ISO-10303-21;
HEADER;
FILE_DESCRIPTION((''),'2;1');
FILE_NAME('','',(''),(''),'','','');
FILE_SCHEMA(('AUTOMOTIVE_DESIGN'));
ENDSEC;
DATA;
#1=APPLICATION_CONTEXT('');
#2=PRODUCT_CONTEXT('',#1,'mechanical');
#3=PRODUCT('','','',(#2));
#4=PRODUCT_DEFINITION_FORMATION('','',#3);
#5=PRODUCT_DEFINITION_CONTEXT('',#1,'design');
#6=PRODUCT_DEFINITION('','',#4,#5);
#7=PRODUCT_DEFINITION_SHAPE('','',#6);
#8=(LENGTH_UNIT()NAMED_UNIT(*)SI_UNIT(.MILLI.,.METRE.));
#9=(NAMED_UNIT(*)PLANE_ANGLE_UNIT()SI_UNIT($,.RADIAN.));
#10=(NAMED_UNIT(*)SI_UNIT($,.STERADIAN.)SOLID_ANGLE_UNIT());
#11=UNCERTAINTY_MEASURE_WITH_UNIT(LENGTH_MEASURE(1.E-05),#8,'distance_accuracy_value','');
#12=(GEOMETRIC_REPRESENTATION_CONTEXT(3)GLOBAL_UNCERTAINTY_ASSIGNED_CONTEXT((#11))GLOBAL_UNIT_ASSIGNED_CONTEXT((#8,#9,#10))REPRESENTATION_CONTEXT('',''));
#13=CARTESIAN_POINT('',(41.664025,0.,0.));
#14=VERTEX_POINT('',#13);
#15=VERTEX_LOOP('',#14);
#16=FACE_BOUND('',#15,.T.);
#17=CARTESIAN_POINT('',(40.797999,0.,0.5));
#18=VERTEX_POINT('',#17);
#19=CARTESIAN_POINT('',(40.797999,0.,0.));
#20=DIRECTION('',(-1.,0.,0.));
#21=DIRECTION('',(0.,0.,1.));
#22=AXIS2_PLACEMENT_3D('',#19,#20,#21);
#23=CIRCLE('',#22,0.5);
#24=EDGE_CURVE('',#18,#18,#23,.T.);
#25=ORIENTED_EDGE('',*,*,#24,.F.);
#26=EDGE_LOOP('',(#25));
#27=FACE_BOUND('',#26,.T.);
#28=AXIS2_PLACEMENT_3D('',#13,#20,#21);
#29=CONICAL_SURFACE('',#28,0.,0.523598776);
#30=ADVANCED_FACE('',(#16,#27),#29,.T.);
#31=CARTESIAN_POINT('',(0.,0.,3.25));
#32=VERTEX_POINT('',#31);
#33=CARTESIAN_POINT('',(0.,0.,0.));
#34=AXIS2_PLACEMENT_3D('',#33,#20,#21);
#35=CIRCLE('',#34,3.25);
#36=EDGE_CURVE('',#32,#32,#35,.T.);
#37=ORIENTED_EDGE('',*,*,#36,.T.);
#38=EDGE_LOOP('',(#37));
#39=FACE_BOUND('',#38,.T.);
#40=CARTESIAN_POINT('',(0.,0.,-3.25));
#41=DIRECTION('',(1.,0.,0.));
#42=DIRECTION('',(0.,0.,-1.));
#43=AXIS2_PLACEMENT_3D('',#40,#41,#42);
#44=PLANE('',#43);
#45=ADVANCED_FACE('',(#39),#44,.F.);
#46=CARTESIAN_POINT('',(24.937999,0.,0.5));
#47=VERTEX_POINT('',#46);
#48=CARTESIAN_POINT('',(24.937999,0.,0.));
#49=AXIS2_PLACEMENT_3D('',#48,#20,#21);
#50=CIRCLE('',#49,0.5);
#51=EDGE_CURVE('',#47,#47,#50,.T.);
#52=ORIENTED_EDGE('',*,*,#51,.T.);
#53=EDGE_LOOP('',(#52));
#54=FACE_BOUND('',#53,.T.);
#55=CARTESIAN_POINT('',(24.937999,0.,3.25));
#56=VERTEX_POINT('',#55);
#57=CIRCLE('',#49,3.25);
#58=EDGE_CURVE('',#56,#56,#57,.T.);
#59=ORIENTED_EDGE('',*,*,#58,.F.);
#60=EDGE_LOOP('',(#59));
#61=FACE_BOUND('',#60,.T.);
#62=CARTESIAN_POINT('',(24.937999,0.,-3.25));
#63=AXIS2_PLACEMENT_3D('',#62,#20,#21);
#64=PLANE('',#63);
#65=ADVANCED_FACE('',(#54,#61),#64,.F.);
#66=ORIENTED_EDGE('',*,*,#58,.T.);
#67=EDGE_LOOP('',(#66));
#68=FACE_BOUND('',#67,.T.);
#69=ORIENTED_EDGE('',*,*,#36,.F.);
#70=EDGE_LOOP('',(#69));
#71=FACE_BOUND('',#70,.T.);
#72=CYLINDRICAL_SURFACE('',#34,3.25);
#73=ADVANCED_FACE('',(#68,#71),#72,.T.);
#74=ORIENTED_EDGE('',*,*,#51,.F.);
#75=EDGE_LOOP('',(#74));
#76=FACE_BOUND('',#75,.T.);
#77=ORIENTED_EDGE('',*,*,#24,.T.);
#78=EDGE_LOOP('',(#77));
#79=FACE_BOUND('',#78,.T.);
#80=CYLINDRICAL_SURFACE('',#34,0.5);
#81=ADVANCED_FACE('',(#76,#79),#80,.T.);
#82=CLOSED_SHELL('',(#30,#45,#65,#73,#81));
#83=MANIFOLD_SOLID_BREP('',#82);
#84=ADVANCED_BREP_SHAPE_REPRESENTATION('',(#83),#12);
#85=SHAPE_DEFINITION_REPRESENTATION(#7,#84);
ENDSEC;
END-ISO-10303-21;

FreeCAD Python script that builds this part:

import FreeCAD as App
import Part
import Sketcher

V = App.Vector
Q = App.Units.Quantity


def add_polygon(sketch, points):
    """Adds a closed chain of lines whose ends are joined by coincident constraints."""
    first, n = sketch.GeometryCount, len(points)
    for a, b in zip(points, points[1:] + points[:1]):
        sketch.addGeometry(Part.LineSegment(App.Vector(*a, 0), App.Vector(*b, 0)), False)
    for i in range(n):
        sketch.addConstraint(Sketcher.Constraint("Coincident", first + i, 2, first + (i + 1) % n, 1))

doc = App.newDocument("Part")
body = doc.addObject("PartDesign::Body", "Body")

# Sketch on XZ plane
sketch1 = body.newObject("Sketcher::SketchObject", "Sketch")
sketch1.AttachmentSupport = (doc.getObject("XZ_Plane"), [""])
sketch1.MapMode = "FlatFace"
add_polygon(sketch1, [(41.7, 0), (40.8, -0.5), (24.9, -0.5), (24.9, -3.2), (0, -3.2), (0, 0)])  # lines 0-5
sketch1.addConstraint([
    Sketcher.Constraint("Horizontal", 1),
    Sketcher.Constraint("Vertical", 2),
    Sketcher.Constraint("Horizontal", 3),
    Sketcher.Constraint("Vertical", 4),
    Sketcher.Constraint("Horizontal", 5),
    Sketcher.Constraint("Coincident", 4, 2, -1, 1),
    Sketcher.Constraint("Angle", 0, Q("-150 deg")),
    Sketcher.Constraint("Distance", 0, 1.0),
    Sketcher.Constraint("DistanceX", 1, 2, 1, 1, 15.86),
    Sketcher.Constraint("DistanceY", 2, 2, 2, 1, 2.75),
    Sketcher.Constraint("DistanceX", 3, 2, 3, 1, 24.937999),
])
revolution = body.newObject("PartDesign::Revolution", "Revolution")
revolution.Profile = sketch1
revolution.ReferenceAxis = (sketch1, ["H_Axis"])
revolution.Angle = 360

doc.recompute()
